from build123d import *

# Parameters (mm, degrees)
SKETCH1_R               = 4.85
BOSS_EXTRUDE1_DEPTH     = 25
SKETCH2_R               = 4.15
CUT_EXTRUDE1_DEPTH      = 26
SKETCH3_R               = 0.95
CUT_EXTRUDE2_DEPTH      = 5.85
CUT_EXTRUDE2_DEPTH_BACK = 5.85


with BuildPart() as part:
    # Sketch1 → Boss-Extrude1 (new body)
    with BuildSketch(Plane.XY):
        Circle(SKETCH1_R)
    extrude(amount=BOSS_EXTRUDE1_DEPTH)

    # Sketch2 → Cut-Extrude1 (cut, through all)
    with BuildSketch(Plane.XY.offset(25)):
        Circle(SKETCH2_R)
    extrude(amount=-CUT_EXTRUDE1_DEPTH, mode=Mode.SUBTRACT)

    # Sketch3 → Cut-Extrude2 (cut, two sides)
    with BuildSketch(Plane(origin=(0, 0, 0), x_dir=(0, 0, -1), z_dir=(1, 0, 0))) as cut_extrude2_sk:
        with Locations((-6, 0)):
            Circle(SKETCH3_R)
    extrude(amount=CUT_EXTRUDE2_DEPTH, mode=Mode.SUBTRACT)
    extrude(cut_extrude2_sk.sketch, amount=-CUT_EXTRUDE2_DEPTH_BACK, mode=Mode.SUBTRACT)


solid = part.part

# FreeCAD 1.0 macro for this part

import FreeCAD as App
import Part
import Sketcher
Q = App.Units.Quantity

doc = App.newDocument("Part")
params = doc.addObject("Spreadsheet::Sheet", "Params")
for row, (alias, value) in enumerate([
    ("sketch1_diameter", "9.7 mm"),
    ("pad1_length", "25 mm"),
    ("sketch2_diameter", "8.3 mm"),
    ("sketch3_diameter", "1.9 mm"),
], start=1):
    params.set(f"A{row}", alias)
    params.set(f"B{row}", "=" + value)
    params.setAlias(f"B{row}", alias)

body = doc.addObject("PartDesign::Body", "Body")

# Sketch on XY plane
sketch1 = body.newObject("Sketcher::SketchObject", "Sketch")
sketch1.AttachmentSupport = (doc.getObject("XY_Plane"), [""])
sketch1.MapMode = "FlatFace"
sketch1.addGeometry(Part.Circle(App.Vector(0, 0, 0), App.Vector(0, 0, 1), 4.8), False)
sketch1.addConstraint(Sketcher.Constraint("Coincident", 0, 3, -1, 1))
sketch1.addConstraint(Sketcher.Constraint("Diameter", 0, Q("9.7 mm")))
sketch1.setExpression("Constraints[1]", "Params.sketch1_diameter")
pad1 = body.newObject("PartDesign::Pad", "Pad")
pad1.Profile = sketch1
pad1.setExpression("Length", "Params.pad1_length")

# Sketch on XY plane
sketch2 = body.newObject("Sketcher::SketchObject", "Sketch001")
sketch2.AttachmentSupport = (doc.getObject("XY_Plane"), [""])
sketch2.MapMode = "FlatFace"
sketch2.AttachmentOffset = App.Placement(App.Vector(0, 0, 25), App.Rotation())
sketch2.addGeometry(Part.Circle(App.Vector(0, 0, 0), App.Vector(0, 0, 1), 4.2), False)
sketch2.addConstraint(Sketcher.Constraint("Coincident", 0, 3, -1, 1))
sketch2.addConstraint(Sketcher.Constraint("Diameter", 0, Q("8.3 mm")))
sketch2.setExpression("Constraints[1]", "Params.sketch2_diameter")
pocket1 = body.newObject("PartDesign::Pocket", "Pocket")
pocket1.Profile = sketch2
pocket1.Type = "ThroughAll"

# Sketch on YZ plane
sketch3 = body.newObject("Sketcher::SketchObject", "Sketch002")
sketch3.AttachmentSupport = (doc.getObject("YZ_Plane"), [""])
sketch3.MapMode = "FlatFace"
sketch3.addGeometry(Part.Circle(App.Vector(0, 6, 0), App.Vector(0, 0, 1), 0.9), False)
sketch3.addConstraint(Sketcher.Constraint("PointOnObject", 0, 3, -2))
sketch3.addConstraint(Sketcher.Constraint("Diameter", 0, Q("1.9 mm")))
sketch3.addConstraint(Sketcher.Constraint("DistanceY", -1, 1, 0, 3, Q("6 mm")))
sketch3.setExpression("Constraints[1]", "Params.sketch3_diameter")
pocket2 = body.newObject("PartDesign::Pocket", "Pocket001")
pocket2.Profile = sketch3
pocket2.Type = "ThroughAll"
pocket2.Midplane = True

doc.recompute()
